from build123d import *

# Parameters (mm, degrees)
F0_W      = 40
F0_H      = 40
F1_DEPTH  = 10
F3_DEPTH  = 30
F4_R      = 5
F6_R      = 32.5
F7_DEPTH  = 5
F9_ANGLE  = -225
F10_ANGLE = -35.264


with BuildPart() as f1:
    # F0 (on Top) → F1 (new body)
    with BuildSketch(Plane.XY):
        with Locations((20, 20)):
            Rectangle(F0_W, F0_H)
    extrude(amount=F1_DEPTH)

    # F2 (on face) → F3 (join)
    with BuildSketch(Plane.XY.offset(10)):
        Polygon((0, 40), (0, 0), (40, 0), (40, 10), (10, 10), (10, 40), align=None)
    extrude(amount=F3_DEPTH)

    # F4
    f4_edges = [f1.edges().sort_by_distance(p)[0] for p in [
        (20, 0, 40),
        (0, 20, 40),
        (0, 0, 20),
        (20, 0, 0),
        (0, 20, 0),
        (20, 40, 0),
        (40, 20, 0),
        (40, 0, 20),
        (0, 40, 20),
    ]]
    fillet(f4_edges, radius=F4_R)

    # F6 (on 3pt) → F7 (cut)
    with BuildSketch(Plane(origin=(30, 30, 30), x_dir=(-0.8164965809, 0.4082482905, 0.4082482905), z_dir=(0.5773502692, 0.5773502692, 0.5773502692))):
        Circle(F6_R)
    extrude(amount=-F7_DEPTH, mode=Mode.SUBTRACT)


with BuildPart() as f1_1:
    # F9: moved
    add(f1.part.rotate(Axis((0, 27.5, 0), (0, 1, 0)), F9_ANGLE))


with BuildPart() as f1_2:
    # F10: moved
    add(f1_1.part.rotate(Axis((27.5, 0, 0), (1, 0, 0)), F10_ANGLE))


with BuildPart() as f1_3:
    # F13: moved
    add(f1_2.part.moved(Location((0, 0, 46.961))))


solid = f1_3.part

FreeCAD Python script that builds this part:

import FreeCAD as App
import Part
import Sketcher
Q = App.Units.Quantity


def edges_at(feature, points):
    """Names of the edges that pass closest to the given points."""
    edges = feature.Shape.Edges
    near = lambda p: min(range(len(edges)), key=lambda i: edges[i].distToShape(Part.Vertex(*p))[0])
    return sorted({f"Edge{near(p) + 1}" for p in points})


def add_polygon(sketch, points):
    """Adds a closed chain of lines whose ends are joined by coincident constraints."""
    first, n = sketch.GeometryCount, len(points)
    for a, b in zip(points, points[1:] + points[:1]):
        sketch.addGeometry(Part.LineSegment(App.Vector(*a, 0), App.Vector(*b, 0)), False)
    for i in range(n):
        sketch.addConstraint(Sketcher.Constraint("Coincident", first + i, 2, first + (i + 1) % n, 1))

doc = App.newDocument("Part")
body = doc.addObject("PartDesign::Body", "Body")

# Sketch on XY plane
sketch1 = body.newObject("Sketcher::SketchObject", "Sketch")
sketch1.AttachmentSupport = (doc.getObject("XY_Plane"), [""])
sketch1.MapMode = "FlatFace"
add_polygon(sketch1, [(0, 40), (0, 0), (40, 0), (40, 40)])  # lines 0-3
sketch1.addConstraint([
    Sketcher.Constraint("Vertical", 0),
    Sketcher.Constraint("Horizontal", 1),
    Sketcher.Constraint("Vertical", 2),
    Sketcher.Constraint("Horizontal", 3),
    Sketcher.Constraint("Coincident", 0, 2, -1, 1),
    Sketcher.Constraint("Equal", 3, 0),
    Sketcher.Constraint("DistanceX", 1, 1, 1, 2, Q("40 mm")),
])
pad1 = body.newObject("PartDesign::Pad", "Pad")
pad1.Profile = sketch1
pad1.Length = 10

# Sketch on XY plane
sketch2 = body.newObject("Sketcher::SketchObject", "Sketch001")
sketch2.AttachmentSupport = (doc.getObject("XY_Plane"), [""])
sketch2.MapMode = "FlatFace"
sketch2.AttachmentOffset = App.Placement(App.Vector(0, 0, 10), App.Rotation())
add_polygon(sketch2, [(0, 40), (0, 0), (40, 0), (40, 10), (10, 10), (10, 40)])  # lines 0-5
sketch2.addConstraint([
    Sketcher.Constraint("Vertical", 0),
    Sketcher.Constraint("Horizontal", 1),
    Sketcher.Constraint("Vertical", 2),
    Sketcher.Constraint("Horizontal", 3),
    Sketcher.Constraint("Vertical", 4),
    Sketcher.Constraint("Horizontal", 5),
    Sketcher.Constraint("Coincident", 0, 2, -1, 1),
    Sketcher.Constraint("Equal", 1, 0),
    Sketcher.Constraint("Equal", 5, 2),
    Sketcher.Constraint("DistanceX", 1, 1, 1, 2, Q("40 mm")),
    Sketcher.Constraint("DistanceX", 3, 2, 3, 1, Q("30 mm")),
])
pad2 = body.newObject("PartDesign::Pad", "Pad001")
pad2.Profile = sketch2
pad2.Length = 30
doc.recompute()

fillet = body.newObject("PartDesign::Fillet", "Fillet")
fillet.Base = (pad2, edges_at(pad2, [
    (20, 0, 40),
    (0, 20, 40),
    (0, 0, 20),
    (20, 0, 0),
    (0, 20, 0),
    (20, 40, 0),
    (40, 20, 0),
    (40, 0, 20),
    (0, 40, 20),
]))
fillet.Radius = 5

# Sketch on an angled plane
sketch3 = body.newObject("Sketcher::SketchObject", "Sketch002")
sketch3.Placement = App.Placement(App.Vector(30, 30, 30), App.Rotation(App.Vector(-0.816496581, 0.40824829, 0.40824829), App.Vector(0, -0.707106781, 0.707106781), App.Vector(0.577350269, 0.577350269, 0.577350269), "ZXY"))
sketch3.addGeometry(Part.Circle(App.Vector(0, 0, 0), App.Vector(0, 0, 1), 32), False)
sketch3.addConstraint([
    Sketcher.Constraint("Coincident", 0, 3, -1, 1),
    Sketcher.Constraint("Diameter", 0, Q("65 mm")),
])
pocket1 = body.newObject("PartDesign::Pocket", "Pocket")
pocket1.Profile = sketch3
pocket1.Length = 5
body2 = doc.addObject("PartDesign::Body", "Body001")
doc.recompute()

body.Placement = App.Placement(App.Vector(0, 0, 0), App.Rotation(App.Vector(0, 1, 0), 135))
boolean = body2.newObject("PartDesign::Boolean", "Boolean")
boolean.Type = "Fuse"
boolean.addObjects([body])
body3 = doc.addObject("PartDesign::Body", "Body002")
doc.recompute()

body2.Placement = App.Placement(App.Vector(0, 0, 0), App.Rotation(App.Vector(1, 0, 0), 324.736))
boolean2 = body3.newObject("PartDesign::Boolean", "Boolean001")
boolean2.Type = "Fuse"
boolean2.addObjects([body2])
body4 = doc.addObject("PartDesign::Body", "Body003")
doc.recompute()

body3.Placement = App.Placement(App.Vector(0, 0, 46.961), App.Rotation(App.Vector(0, 0, 1), 0))
boolean3 = body4.newObject("PartDesign::Boolean", "Boolean002")
boolean3.Type = "Fuse"
boolean3.addObjects([body3])

doc.recompute()
